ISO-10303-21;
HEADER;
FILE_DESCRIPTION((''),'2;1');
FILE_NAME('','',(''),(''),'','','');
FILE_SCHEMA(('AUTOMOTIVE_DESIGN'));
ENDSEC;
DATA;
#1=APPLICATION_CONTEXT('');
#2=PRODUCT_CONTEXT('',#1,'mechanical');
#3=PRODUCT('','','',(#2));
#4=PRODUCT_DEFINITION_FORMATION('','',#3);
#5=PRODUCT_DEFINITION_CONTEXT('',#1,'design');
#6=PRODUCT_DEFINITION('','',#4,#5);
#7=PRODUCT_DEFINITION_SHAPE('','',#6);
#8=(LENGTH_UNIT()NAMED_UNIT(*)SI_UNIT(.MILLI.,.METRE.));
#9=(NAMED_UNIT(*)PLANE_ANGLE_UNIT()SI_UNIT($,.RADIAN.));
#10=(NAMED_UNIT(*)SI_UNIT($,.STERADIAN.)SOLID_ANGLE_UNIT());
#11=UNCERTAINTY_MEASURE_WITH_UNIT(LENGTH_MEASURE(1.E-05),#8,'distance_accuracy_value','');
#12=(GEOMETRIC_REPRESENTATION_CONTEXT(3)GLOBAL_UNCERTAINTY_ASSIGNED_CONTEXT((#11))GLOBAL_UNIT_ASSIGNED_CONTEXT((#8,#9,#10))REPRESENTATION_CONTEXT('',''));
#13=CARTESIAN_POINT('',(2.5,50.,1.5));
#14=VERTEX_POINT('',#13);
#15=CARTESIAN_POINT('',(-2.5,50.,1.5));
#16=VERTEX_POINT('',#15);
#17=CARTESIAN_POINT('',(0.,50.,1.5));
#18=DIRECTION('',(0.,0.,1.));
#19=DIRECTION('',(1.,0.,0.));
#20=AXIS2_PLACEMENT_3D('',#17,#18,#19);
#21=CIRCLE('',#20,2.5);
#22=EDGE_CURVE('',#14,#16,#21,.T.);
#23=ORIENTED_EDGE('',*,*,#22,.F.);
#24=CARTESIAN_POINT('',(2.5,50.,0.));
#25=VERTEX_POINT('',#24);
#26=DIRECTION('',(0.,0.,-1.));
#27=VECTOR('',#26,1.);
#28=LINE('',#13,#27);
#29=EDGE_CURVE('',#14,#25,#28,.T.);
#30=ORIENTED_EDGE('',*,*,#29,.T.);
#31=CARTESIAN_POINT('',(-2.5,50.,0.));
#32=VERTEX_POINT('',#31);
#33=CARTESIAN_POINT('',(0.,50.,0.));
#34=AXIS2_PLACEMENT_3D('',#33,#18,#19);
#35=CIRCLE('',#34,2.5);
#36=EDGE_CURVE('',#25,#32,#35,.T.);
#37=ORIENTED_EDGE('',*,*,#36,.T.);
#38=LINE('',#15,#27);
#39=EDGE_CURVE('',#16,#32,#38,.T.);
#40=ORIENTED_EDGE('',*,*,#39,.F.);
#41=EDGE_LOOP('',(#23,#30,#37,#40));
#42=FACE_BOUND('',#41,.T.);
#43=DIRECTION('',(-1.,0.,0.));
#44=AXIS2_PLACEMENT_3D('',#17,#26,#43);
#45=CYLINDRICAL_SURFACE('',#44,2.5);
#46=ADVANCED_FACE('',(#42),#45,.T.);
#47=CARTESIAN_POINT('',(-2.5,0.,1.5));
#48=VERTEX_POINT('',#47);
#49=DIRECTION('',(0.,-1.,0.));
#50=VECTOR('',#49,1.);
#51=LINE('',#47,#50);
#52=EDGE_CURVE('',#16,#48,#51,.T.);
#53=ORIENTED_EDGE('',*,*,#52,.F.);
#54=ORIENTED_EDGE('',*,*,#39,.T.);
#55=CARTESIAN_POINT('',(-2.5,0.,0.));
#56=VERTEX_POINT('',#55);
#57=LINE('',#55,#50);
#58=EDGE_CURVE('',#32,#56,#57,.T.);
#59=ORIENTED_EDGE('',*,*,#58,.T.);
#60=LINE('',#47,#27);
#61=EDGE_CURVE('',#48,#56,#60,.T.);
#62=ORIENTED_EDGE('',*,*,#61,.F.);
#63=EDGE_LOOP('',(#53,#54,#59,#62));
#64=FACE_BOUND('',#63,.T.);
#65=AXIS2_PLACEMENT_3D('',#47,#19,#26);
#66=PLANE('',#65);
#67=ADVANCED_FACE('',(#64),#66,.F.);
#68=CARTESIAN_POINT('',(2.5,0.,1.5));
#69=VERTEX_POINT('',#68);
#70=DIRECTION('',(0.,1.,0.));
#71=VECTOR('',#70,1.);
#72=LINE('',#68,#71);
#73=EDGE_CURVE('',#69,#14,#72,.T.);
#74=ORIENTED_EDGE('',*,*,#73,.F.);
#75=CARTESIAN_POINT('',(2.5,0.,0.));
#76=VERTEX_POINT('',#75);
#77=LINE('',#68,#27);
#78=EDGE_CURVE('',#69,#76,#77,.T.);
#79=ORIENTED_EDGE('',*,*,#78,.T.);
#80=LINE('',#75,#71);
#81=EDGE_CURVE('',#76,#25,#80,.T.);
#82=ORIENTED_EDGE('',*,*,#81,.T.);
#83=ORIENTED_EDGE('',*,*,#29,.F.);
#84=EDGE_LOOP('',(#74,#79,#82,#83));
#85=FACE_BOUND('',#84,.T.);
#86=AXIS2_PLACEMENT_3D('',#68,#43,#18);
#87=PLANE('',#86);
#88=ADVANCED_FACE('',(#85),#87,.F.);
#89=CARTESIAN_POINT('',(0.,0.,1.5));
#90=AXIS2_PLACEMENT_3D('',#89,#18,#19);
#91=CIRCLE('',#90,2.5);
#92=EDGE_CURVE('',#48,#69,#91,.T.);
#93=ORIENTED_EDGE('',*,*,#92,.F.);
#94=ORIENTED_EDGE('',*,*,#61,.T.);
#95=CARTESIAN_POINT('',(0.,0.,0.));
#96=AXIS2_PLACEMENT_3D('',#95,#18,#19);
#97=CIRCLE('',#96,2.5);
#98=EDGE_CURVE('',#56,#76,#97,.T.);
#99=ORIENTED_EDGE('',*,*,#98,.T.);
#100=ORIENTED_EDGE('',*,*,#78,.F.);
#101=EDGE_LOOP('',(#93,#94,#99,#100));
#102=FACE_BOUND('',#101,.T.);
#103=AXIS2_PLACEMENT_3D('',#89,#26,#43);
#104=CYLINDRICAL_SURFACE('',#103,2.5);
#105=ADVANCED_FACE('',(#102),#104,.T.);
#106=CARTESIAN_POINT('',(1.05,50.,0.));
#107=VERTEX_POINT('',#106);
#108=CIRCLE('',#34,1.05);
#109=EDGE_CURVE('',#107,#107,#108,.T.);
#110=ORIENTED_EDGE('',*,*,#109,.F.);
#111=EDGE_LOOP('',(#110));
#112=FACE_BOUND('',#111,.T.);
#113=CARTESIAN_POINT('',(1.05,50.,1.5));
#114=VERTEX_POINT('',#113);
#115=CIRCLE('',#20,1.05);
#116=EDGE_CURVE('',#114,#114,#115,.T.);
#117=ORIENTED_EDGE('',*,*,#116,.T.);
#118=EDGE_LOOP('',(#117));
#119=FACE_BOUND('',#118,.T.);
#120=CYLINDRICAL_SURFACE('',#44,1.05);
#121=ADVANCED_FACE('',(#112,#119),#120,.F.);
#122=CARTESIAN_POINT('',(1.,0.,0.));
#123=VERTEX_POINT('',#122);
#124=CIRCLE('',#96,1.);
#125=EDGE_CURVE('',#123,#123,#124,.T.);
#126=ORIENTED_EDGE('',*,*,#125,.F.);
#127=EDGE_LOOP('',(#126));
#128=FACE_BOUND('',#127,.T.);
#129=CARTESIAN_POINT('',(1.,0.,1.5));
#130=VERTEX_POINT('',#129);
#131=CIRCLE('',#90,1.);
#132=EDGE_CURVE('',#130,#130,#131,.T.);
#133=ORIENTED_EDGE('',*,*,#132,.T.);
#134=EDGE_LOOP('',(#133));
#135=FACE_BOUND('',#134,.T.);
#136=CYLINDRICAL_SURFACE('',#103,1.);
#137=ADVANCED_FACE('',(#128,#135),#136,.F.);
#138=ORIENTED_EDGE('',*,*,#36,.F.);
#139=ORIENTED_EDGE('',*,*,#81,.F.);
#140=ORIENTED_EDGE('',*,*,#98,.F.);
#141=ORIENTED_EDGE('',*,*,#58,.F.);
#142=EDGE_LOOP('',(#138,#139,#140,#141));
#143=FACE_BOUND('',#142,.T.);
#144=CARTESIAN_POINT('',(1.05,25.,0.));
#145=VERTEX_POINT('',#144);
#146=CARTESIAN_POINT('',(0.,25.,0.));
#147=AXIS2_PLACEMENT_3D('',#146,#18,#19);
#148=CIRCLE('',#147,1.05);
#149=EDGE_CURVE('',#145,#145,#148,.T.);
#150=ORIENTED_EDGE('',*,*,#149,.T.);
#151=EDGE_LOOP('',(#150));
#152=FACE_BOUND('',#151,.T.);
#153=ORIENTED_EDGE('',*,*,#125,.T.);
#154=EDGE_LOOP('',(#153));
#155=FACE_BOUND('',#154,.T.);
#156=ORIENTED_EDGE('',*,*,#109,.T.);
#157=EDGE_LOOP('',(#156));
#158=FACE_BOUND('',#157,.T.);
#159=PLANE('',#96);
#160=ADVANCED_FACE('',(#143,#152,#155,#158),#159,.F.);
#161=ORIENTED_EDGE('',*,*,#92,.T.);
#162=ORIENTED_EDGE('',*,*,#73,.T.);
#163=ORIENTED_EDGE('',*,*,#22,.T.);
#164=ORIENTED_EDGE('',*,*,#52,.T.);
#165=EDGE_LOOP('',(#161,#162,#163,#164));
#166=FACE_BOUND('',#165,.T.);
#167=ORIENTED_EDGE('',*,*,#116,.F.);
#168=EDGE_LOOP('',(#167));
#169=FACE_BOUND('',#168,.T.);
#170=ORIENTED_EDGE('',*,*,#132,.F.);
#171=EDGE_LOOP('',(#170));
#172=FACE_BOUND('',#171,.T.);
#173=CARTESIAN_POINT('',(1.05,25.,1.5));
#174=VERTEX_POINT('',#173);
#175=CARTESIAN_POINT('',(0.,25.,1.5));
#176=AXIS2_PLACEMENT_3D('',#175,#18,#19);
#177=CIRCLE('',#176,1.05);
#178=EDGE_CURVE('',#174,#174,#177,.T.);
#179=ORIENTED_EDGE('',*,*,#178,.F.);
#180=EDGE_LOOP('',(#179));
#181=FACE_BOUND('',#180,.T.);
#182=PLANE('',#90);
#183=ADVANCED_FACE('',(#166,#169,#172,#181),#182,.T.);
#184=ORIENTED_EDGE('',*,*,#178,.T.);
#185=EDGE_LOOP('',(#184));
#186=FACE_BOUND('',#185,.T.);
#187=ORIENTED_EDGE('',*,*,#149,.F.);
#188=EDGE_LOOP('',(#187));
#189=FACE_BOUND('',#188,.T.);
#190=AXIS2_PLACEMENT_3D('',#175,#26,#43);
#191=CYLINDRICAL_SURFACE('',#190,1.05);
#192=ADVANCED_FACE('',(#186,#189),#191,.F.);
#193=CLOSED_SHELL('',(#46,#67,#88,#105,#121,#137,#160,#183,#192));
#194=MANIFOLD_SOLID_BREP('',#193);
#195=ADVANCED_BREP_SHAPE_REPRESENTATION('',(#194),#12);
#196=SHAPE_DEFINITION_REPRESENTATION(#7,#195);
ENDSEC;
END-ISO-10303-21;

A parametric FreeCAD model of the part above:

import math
import FreeCAD as App
import Part
import Sketcher

V = App.Vector

doc = App.newDocument("Part")
body = doc.addObject("PartDesign::Body", "Body")

sketch1 = doc.addObject("Sketcher::SketchObject", "Sketch")
body.addObject(sketch1)
sketch1.AttachmentSupport = (doc.XY_Plane, [""])
sketch1.MapMode = "FlatFace"
sketch1.addGeometry([
    Part.LineSegment(V(-2.5, 50, 0), V(-2.5, 0, 0)),
    Part.ArcOfCircle(Part.Circle(V(0, 0, 0), V(0, 0, 1), 2.5), math.radians(180), math.radians(360)),
    Part.LineSegment(V(2.5, 0, 0), V(2.5, 50, 0)),
    Part.ArcOfCircle(Part.Circle(V(0, 50, 0), V(0, 0, 1), 2.5), math.radians(0), math.radians(180)),
    Part.Circle(V(0, 0, 0), V(0, 0, 1), 1),
    Part.Circle(V(0, 25, 0), V(0, 0, 1), 1.1),
    Part.Circle(V(0, 50, 0), V(0, 0, 1), 1.1),
], False)
sketch1.addConstraint([
    Sketcher.Constraint("Tangent", 0, 2, 1, 1),
    Sketcher.Constraint("Tangent", 1, 2, 2, 1),
    Sketcher.Constraint("Tangent", 2, 2, 3, 1),
    Sketcher.Constraint("Tangent", 3, 2, 0, 1),
    Sketcher.Constraint("Vertical", 0),
    Sketcher.Constraint("Vertical", 2),
    Sketcher.Constraint("Coincident", 1, 3, -1, 1),
    Sketcher.Constraint("Coincident", 4, 3, -1, 1),
    Sketcher.Constraint("Coincident", 6, 3, 3, 3),
    Sketcher.Constraint("Equal", 5, 6),
    Sketcher.Constraint("PointOnObject", 5, 3, -2),
    Sketcher.Constraint("Diameter", 4, 2.0),
    Sketcher.Constraint("Diameter", 5, 2.1),
    Sketcher.Constraint("Radius", 1, 2.5),
    Sketcher.Constraint("DistanceY", 0, 2, 0, 1, 50.0),
    Sketcher.Constraint("DistanceY", -1, 1, 5, 3, 25.0),
])
pad1 = doc.addObject("PartDesign::Pad", "Pad")
body.addObject(pad1)
pad1.Profile = sketch1
pad1.Length = 1.5

doc.recompute()
